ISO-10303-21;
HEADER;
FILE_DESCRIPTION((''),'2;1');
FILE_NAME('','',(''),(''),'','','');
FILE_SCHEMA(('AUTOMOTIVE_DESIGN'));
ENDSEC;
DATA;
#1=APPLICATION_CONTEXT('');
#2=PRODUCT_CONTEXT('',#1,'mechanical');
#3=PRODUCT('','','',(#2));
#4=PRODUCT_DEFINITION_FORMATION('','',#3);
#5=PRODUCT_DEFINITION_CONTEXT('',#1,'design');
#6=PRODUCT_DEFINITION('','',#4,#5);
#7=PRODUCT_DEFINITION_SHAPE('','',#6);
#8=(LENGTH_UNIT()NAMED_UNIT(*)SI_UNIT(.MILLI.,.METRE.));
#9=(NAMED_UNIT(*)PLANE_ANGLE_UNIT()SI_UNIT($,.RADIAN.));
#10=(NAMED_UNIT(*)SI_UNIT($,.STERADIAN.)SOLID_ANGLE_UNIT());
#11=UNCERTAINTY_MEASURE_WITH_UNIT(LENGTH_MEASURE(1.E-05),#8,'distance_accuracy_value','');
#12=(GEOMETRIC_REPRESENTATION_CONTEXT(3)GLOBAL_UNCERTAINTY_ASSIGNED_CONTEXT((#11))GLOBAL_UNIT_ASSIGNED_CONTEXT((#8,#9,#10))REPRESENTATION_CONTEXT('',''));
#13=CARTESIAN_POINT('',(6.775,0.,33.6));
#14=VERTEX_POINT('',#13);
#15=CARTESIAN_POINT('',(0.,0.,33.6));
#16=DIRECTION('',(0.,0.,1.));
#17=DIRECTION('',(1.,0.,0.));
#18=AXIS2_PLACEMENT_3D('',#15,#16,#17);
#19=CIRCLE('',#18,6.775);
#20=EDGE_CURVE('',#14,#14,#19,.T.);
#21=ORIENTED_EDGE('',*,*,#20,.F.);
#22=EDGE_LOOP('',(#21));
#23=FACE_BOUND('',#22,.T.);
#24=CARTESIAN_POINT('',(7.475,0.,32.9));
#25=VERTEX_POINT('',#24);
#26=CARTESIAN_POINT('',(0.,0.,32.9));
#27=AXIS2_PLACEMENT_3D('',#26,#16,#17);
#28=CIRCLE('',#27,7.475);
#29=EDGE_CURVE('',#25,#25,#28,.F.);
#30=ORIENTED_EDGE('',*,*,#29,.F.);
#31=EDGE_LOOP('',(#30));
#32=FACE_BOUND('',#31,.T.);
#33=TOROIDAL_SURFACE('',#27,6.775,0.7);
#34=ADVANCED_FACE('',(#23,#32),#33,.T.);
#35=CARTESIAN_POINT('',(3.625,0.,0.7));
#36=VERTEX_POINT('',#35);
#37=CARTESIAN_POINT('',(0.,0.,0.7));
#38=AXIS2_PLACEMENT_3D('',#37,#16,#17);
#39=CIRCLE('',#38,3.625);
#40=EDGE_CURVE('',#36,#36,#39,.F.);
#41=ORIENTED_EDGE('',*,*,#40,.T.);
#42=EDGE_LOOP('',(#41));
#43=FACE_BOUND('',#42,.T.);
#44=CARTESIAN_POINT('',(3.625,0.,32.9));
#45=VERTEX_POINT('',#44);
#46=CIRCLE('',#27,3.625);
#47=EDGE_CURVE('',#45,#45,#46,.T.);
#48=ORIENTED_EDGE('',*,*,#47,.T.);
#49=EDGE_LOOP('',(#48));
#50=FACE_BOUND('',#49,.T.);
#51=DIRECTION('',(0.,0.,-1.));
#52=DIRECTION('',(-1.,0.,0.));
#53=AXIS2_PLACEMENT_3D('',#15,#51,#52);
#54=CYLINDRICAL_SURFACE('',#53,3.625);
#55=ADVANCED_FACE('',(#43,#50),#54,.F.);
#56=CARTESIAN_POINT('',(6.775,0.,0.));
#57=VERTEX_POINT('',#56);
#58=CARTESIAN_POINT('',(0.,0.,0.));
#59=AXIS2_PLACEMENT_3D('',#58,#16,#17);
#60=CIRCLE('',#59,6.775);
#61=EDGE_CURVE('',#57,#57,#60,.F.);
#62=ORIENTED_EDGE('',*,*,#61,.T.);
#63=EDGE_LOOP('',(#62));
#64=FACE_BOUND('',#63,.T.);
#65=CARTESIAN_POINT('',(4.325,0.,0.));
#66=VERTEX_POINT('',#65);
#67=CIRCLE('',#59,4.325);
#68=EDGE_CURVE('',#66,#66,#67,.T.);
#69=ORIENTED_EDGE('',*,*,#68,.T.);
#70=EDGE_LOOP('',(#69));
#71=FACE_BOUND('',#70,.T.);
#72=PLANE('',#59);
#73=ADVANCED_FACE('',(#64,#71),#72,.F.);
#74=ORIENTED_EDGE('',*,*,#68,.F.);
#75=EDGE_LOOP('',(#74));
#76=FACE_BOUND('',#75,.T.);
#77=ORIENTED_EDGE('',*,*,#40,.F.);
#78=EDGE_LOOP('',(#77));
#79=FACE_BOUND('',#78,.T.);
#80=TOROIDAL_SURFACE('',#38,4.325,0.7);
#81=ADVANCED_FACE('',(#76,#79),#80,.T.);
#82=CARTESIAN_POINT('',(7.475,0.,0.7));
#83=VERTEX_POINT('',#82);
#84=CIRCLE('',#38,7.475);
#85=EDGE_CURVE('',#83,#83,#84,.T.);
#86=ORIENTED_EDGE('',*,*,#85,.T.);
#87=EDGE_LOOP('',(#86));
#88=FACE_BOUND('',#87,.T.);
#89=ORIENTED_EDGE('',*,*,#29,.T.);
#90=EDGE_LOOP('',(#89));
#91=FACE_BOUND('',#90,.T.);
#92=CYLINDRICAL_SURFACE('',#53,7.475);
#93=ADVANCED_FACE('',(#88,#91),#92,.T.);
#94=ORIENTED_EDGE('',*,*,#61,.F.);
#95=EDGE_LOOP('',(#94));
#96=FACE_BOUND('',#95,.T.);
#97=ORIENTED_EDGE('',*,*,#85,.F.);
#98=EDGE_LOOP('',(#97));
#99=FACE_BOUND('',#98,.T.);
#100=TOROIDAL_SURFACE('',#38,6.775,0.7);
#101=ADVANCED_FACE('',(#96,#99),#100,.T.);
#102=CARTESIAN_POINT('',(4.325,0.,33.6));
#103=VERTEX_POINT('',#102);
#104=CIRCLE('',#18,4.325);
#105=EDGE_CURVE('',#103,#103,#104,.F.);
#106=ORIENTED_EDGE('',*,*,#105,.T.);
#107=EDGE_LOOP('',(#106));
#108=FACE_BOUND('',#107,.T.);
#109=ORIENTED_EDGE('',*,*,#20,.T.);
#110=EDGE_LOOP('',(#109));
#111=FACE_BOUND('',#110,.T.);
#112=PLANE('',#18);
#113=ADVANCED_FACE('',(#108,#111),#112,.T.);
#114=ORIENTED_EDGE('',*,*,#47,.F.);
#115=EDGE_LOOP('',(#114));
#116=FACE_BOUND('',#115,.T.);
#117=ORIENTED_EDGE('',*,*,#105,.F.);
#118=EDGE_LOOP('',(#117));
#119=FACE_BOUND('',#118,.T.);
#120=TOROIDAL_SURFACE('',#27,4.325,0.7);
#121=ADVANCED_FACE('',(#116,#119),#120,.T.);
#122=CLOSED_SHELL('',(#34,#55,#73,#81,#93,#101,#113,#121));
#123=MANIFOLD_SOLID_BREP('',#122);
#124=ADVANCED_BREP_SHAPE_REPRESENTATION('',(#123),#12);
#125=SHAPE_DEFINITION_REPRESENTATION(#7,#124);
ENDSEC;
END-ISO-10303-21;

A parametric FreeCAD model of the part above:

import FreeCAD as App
import Part
import Sketcher

V = App.Vector


def edges_at(feature, points):
    """Names of the edges that pass closest to the given points."""
    edges = feature.Shape.Edges
    near = lambda p: min(range(len(edges)), key=lambda i: edges[i].distToShape(Part.Vertex(*p))[0])
    return sorted({f"Edge{near(p) + 1}" for p in points})

doc = App.newDocument("Part")
body = doc.addObject("PartDesign::Body", "Body")

# Sketch on XY plane
sketch1 = body.newObject("Sketcher::SketchObject", "Sketch")
sketch1.AttachmentSupport = (doc.getObject("XY_Plane"), [""])
sketch1.MapMode = "FlatFace"
sketch1.addGeometry(Part.Circle(V(0, 0, 0), V(0, 0, 1), 7.5), False)
sketch1.addGeometry(Part.Circle(V(0, 0, 0), V(0, 0, 1), 3.6), False)
sketch1.addConstraint(Sketcher.Constraint("Coincident", 0, 3, -1, 1))
sketch1.addConstraint(Sketcher.Constraint("Coincident", 1, 3, -1, 1))
sketch1.addConstraint(Sketcher.Constraint("Diameter", 0, 14.95))
sketch1.addConstraint(Sketcher.Constraint("Diameter", 1, 7.25))
pad1 = body.newObject("PartDesign::Pad", "Pad")
pad1.Profile = sketch1
pad1.Length = 33.6
doc.recompute()

fillet = body.newObject("PartDesign::Fillet", "Fillet")
fillet.Base = (pad1, edges_at(pad1, [
    (-7.475, 0, 0),
    (-7.475, 0, 33.6),
    (-3.625, 0, 0),
    (-3.625, 0, 33.6),
]))
fillet.Radius = 0.7

doc.recompute()
